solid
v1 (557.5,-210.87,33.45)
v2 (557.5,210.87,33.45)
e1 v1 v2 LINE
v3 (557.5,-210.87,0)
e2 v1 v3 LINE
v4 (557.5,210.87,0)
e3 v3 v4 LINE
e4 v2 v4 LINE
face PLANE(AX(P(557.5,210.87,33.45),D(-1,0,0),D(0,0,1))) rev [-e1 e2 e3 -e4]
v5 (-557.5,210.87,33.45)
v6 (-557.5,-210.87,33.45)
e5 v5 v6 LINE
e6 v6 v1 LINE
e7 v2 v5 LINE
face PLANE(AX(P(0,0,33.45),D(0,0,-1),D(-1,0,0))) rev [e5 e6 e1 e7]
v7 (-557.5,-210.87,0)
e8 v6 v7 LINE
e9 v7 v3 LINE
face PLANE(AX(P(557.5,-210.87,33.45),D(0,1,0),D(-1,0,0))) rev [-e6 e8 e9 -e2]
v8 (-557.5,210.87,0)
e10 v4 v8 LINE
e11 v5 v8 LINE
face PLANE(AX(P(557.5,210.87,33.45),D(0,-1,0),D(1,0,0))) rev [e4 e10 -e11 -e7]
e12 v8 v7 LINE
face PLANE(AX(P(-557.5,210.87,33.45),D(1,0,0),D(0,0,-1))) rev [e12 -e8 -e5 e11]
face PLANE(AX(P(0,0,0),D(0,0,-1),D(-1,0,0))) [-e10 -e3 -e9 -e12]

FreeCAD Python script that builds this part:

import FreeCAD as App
import Part
import Sketcher
Q = App.Units.Quantity


def add_polygon(sketch, points):
    """Adds a closed chain of lines whose ends are joined by coincident constraints."""
    first, n = sketch.GeometryCount, len(points)
    for a, b in zip(points, points[1:] + points[:1]):
        sketch.addGeometry(Part.LineSegment(App.Vector(*a, 0), App.Vector(*b, 0)), False)
    for i in range(n):
        sketch.addConstraint(Sketcher.Constraint("Coincident", first + i, 2, first + (i + 1) % n, 1))

doc = App.newDocument("Part")
body = doc.addObject("PartDesign::Body", "Body")

sketch1 = body.newObject("Sketcher::SketchObject", "Sketch")
sketch1.AttachmentSupport = (doc.getObject("XY_Plane"), [""])
sketch1.MapMode = "FlatFace"
add_polygon(sketch1, [(-557.5, 210.87), (-557.5, -210.87), (557.5, -210.87), (557.5, 210.87)])
sketch1.addConstraint(Sketcher.Constraint("Vertical", 0))
sketch1.addConstraint(Sketcher.Constraint("Horizontal", 1))
sketch1.addConstraint(Sketcher.Constraint("Vertical", 2))
sketch1.addConstraint(Sketcher.Constraint("Horizontal", 3))
sketch1.addConstraint(Sketcher.Constraint("Symmetric", 0, 2, 2, 2, -1, 1))
sketch1.addConstraint(Sketcher.Constraint("DistanceX", 1, 1, 1, 2, Q("1115 mm")))
sketch1.addConstraint(Sketcher.Constraint("DistanceY", 0, 2, 0, 1, Q("421.74 mm")))
pad1 = body.newObject("PartDesign::Pad", "Pad")
pad1.Profile = sketch1
pad1.Length = 33.45

doc.recompute()
